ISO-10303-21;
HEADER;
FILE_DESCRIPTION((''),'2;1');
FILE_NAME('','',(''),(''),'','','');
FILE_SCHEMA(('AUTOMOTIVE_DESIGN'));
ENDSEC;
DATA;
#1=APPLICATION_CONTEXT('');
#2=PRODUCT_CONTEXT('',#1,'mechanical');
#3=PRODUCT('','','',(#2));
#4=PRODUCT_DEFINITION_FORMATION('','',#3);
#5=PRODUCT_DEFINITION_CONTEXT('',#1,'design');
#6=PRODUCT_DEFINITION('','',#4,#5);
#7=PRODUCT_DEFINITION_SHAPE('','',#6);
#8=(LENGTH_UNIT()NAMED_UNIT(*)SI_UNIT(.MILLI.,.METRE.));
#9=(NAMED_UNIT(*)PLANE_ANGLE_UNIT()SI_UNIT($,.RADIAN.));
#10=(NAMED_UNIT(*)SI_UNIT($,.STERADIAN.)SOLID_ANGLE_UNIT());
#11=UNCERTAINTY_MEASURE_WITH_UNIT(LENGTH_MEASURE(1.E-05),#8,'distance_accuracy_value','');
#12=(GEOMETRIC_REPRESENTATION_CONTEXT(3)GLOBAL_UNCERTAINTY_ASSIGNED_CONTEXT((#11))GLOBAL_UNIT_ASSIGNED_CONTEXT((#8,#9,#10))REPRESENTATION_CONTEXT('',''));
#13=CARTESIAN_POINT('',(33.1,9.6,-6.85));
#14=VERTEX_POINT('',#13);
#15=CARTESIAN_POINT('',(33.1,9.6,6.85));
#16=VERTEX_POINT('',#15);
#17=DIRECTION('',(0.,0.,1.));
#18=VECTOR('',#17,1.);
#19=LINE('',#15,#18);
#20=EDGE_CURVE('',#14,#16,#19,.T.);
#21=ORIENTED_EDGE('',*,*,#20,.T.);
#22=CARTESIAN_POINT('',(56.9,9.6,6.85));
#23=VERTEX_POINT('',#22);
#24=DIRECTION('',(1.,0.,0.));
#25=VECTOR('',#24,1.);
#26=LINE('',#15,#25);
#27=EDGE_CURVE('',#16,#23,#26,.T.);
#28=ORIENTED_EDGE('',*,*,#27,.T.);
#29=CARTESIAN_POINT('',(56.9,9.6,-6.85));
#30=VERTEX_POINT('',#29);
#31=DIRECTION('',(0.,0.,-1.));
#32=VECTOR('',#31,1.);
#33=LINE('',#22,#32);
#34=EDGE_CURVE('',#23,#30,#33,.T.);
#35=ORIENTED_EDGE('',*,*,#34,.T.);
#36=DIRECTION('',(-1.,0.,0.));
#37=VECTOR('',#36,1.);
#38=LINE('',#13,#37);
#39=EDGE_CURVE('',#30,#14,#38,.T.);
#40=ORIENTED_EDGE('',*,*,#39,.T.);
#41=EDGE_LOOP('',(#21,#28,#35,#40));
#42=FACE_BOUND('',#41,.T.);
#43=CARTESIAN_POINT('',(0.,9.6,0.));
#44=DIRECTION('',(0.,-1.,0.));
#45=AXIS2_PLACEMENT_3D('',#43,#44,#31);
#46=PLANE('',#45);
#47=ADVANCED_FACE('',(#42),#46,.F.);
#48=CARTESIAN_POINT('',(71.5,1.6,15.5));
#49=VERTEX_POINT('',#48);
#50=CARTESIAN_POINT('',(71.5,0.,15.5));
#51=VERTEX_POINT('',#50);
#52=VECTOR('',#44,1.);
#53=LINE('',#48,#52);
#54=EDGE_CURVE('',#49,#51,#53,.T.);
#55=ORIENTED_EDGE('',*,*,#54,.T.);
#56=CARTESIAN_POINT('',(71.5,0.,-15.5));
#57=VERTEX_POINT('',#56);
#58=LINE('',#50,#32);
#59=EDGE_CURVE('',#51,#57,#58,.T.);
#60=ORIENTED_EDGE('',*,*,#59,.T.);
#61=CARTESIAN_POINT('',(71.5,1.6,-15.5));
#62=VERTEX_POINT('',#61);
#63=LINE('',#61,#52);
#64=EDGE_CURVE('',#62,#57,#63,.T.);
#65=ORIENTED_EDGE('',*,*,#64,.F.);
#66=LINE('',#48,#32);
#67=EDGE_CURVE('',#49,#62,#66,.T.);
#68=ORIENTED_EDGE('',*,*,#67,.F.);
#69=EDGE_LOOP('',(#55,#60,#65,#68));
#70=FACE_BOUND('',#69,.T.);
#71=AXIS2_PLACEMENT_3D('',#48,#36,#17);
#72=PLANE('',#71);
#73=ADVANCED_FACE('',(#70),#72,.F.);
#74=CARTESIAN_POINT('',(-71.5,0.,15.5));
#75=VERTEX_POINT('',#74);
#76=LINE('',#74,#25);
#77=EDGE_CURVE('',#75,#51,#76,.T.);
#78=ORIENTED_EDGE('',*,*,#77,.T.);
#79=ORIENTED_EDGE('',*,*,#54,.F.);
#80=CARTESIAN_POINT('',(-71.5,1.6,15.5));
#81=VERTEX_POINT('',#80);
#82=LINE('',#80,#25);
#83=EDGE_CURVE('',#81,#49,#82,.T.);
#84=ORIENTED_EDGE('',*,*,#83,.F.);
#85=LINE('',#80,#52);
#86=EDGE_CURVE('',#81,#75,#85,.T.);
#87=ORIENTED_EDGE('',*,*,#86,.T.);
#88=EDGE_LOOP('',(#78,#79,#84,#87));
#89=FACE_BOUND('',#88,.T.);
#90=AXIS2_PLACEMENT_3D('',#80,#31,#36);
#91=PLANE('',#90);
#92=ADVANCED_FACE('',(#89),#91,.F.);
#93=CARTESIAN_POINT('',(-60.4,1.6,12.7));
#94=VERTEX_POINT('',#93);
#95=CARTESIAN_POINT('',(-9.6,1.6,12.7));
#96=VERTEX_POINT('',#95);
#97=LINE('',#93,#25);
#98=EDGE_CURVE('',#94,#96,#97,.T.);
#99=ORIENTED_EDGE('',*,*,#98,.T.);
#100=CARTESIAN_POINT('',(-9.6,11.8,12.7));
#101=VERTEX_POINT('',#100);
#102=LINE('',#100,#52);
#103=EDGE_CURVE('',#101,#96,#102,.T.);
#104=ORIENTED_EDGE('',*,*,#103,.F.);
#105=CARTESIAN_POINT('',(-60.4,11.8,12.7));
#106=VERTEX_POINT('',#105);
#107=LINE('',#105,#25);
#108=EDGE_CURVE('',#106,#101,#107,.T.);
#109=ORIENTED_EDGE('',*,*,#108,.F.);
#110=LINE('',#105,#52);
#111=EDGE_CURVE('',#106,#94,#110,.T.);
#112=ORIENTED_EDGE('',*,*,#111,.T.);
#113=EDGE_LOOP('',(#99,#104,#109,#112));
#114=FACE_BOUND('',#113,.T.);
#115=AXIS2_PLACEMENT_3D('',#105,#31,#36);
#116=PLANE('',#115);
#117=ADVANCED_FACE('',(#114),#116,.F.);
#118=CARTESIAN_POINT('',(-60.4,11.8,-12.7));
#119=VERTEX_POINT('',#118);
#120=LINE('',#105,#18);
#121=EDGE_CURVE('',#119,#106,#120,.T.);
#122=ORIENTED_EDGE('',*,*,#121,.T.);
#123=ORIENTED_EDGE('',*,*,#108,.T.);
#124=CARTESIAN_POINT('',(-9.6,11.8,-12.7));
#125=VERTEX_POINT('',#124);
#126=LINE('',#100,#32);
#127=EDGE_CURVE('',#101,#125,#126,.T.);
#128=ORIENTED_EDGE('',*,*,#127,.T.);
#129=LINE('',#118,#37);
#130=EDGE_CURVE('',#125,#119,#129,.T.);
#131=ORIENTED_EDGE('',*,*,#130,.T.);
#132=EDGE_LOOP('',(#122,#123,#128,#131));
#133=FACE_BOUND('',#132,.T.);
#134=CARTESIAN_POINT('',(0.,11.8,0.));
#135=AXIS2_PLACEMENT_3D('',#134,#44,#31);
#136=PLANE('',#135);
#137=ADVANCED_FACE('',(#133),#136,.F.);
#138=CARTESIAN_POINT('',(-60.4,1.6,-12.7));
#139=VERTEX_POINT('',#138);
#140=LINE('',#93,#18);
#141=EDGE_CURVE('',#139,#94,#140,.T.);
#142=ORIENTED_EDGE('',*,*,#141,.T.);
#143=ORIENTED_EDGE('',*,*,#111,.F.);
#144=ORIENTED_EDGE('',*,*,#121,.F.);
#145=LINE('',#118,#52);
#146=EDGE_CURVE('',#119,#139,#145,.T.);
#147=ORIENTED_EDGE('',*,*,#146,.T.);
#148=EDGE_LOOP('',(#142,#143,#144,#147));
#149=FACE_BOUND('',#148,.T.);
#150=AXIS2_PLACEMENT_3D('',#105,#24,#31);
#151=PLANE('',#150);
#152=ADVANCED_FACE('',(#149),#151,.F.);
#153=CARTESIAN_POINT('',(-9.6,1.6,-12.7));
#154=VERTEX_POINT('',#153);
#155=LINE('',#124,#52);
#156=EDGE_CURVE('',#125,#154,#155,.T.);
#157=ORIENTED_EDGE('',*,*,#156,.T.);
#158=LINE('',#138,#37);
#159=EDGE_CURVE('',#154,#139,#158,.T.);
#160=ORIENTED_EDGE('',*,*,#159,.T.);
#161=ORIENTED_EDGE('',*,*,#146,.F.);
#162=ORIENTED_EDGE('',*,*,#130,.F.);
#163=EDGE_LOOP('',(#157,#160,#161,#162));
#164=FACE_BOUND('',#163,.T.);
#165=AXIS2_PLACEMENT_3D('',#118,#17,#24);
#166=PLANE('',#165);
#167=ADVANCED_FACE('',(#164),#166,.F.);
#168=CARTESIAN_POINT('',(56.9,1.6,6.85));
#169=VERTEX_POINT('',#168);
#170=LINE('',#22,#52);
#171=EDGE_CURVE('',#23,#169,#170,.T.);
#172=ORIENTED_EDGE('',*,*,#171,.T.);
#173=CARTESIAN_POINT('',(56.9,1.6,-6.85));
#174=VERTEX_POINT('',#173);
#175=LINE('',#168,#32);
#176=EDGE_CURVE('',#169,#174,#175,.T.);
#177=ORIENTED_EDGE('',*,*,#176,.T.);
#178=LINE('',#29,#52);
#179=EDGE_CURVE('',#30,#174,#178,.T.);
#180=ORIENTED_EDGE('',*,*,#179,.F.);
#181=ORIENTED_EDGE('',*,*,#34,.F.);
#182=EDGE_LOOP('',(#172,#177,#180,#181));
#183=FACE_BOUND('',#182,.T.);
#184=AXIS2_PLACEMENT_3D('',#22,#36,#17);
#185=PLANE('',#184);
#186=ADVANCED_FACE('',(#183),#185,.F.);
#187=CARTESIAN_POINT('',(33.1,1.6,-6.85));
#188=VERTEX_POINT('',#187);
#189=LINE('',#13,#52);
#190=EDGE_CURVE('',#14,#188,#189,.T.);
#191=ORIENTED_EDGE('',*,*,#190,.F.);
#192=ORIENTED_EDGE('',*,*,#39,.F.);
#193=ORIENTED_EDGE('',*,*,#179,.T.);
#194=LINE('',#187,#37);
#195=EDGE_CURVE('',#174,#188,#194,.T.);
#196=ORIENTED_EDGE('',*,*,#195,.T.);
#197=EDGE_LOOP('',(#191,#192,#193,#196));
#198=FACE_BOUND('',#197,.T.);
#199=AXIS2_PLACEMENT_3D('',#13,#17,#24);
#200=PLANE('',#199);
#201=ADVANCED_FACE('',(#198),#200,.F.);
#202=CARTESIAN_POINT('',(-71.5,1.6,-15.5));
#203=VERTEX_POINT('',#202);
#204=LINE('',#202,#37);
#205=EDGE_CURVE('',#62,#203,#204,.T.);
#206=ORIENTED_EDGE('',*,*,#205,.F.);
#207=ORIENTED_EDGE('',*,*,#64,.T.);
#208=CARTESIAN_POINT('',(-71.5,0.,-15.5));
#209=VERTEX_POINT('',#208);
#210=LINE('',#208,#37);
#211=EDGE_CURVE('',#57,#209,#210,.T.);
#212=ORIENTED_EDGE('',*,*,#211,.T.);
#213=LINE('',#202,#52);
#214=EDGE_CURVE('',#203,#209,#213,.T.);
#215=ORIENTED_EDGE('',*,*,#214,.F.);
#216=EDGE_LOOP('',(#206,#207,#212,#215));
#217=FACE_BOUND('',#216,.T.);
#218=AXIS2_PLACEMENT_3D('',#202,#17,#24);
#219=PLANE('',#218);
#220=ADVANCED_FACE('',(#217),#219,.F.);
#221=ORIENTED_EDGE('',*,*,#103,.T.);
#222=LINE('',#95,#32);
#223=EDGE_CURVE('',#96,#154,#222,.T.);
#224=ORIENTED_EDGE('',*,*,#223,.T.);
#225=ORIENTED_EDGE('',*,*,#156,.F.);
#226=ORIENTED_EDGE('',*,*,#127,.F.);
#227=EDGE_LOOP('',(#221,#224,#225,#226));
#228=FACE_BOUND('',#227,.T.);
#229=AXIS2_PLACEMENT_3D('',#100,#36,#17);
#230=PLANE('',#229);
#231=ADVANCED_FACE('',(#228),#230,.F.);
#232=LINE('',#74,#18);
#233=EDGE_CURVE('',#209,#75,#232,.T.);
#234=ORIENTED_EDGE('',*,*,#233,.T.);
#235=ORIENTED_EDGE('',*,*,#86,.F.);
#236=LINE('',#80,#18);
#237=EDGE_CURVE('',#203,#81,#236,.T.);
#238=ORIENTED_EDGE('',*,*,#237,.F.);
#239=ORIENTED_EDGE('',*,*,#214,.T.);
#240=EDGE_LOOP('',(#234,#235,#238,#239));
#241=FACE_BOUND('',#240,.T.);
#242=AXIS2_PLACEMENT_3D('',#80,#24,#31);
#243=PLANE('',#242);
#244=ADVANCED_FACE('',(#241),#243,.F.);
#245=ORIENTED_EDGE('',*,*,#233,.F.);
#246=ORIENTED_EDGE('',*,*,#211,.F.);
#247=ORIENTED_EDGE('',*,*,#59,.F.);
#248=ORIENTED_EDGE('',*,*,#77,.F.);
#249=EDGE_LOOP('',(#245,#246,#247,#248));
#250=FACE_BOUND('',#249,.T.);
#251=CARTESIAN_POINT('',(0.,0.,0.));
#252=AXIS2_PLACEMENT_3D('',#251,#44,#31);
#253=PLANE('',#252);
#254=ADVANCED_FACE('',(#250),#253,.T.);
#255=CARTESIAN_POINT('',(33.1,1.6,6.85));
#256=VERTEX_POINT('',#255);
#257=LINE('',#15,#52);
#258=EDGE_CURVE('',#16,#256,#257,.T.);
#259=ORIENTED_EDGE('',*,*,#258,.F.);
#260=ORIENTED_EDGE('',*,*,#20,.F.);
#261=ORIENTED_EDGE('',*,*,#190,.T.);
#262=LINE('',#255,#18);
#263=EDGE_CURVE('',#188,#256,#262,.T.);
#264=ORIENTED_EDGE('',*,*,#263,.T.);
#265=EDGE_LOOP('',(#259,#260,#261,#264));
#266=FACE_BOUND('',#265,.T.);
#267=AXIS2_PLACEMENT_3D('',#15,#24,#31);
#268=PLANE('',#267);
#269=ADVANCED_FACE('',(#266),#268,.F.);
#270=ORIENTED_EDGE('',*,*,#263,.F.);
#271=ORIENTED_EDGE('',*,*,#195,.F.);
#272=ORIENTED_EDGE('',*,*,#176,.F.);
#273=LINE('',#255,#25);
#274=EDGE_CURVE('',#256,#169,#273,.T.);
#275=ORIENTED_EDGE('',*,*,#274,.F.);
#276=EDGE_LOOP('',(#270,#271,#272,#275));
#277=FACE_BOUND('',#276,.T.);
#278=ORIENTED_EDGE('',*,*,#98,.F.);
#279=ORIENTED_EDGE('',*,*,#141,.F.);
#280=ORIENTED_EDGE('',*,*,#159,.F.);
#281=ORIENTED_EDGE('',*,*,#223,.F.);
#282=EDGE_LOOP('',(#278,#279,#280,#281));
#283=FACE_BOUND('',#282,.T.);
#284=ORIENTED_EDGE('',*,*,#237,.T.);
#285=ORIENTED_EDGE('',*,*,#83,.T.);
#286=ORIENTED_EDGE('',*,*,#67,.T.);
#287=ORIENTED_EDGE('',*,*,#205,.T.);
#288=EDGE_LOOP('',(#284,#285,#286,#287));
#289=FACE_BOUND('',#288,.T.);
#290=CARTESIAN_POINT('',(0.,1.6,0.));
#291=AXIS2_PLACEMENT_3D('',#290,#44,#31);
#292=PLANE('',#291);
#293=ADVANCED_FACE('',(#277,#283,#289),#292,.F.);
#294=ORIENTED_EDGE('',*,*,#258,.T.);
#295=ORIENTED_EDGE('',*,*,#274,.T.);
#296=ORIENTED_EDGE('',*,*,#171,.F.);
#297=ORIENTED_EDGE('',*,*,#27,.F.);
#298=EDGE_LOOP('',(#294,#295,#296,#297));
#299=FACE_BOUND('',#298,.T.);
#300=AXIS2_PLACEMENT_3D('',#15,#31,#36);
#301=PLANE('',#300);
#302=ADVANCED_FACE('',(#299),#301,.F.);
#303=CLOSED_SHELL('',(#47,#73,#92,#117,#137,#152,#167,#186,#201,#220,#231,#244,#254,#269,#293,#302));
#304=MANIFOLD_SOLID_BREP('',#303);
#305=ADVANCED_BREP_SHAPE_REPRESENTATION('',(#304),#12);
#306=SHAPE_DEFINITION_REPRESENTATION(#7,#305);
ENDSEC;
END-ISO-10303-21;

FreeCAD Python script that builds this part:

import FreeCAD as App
import Part
import Sketcher
Q = App.Units.Quantity

doc = App.newDocument("Part")
body = doc.addObject("PartDesign::Body", "Body")

sketch1 = doc.addObject("Sketcher::SketchObject", "Sketch")
body.addObject(sketch1)
sketch1.AttachmentSupport = (doc.XZ_Plane, [""])
sketch1.MapMode = "FlatFace"
sketch1.addGeometry([
    Part.LineSegment(App.Vector(-72, -16, 0), App.Vector(-72, 16, 0)),
    Part.LineSegment(App.Vector(-72, 16, 0), App.Vector(72, 16, 0)),
    Part.LineSegment(App.Vector(72, 16, 0), App.Vector(72, -16, 0)),
    Part.LineSegment(App.Vector(72, -16, 0), App.Vector(-72, -16, 0)),
], False)
sketch1.addConstraint([
    Sketcher.Constraint("Coincident", 0, 2, 1, 1),
    Sketcher.Constraint("Coincident", 1, 2, 2, 1),
    Sketcher.Constraint("Coincident", 2, 2, 3, 1),
    Sketcher.Constraint("Coincident", 3, 2, 0, 1),
    Sketcher.Constraint("Vertical", 0),
    Sketcher.Constraint("Horizontal", 1),
    Sketcher.Constraint("Vertical", 2),
    Sketcher.Constraint("Horizontal", 3),
    Sketcher.Constraint("Symmetric", 0, 2, 2, 2, -1, 1),
    Sketcher.Constraint("DistanceX", 1, 1, 1, 2, Q("143 mm")),
    Sketcher.Constraint("DistanceY", 0, 1, 0, 2, Q("31 mm")),
])
pad1 = doc.addObject("PartDesign::Pad", "Pad")
body.addObject(pad1)
pad1.Profile = sketch1
pad1.Length = 1.6
pad1.Reversed = True

sketch2 = doc.addObject("Sketcher::SketchObject", "Sketch001")
body.addObject(sketch2)
sketch2.AttachmentSupport = (doc.XZ_Plane, [""])
sketch2.MapMode = "FlatFace"
sketch2.AttachmentOffset = App.Placement(App.Vector(0, 0, -1.6), App.Rotation())
sketch2.addGeometry([
    Part.LineSegment(App.Vector(33, -7, 0), App.Vector(33, 7, 0)),
    Part.LineSegment(App.Vector(33, 7, 0), App.Vector(57, 7, 0)),
    Part.LineSegment(App.Vector(57, 7, 0), App.Vector(57, -7, 0)),
    Part.LineSegment(App.Vector(57, -7, 0), App.Vector(33, -7, 0)),
], False)
sketch2.addConstraint([
    Sketcher.Constraint("Coincident", 0, 2, 1, 1),
    Sketcher.Constraint("Coincident", 1, 2, 2, 1),
    Sketcher.Constraint("Coincident", 2, 2, 3, 1),
    Sketcher.Constraint("Coincident", 3, 2, 0, 1),
    Sketcher.Constraint("Vertical", 0),
    Sketcher.Constraint("Horizontal", 1),
    Sketcher.Constraint("Vertical", 2),
    Sketcher.Constraint("Horizontal", 3),
    Sketcher.Constraint("DistanceX", 1, 1, 1, 2, Q("23.8 mm")),
    Sketcher.Constraint("DistanceY", 0, 1, 0, 2, Q("13.7 mm")),
    Sketcher.Constraint("DistanceX", -1, 1, 0, 2, Q("33.1 mm")),
    Sketcher.Constraint("DistanceY", -1, 1, 0, 2, Q("6.85 mm")),
])
pad2 = doc.addObject("PartDesign::Pad", "Pad001")
body.addObject(pad2)
pad2.Profile = sketch2
pad2.Length = 8
pad2.Reversed = True

sketch3 = doc.addObject("Sketcher::SketchObject", "Sketch002")
body.addObject(sketch3)
sketch3.AttachmentSupport = (doc.XZ_Plane, [""])
sketch3.MapMode = "FlatFace"
sketch3.AttachmentOffset = App.Placement(App.Vector(0, 0, -1.6), App.Rotation())
sketch3.addGeometry([
    Part.LineSegment(App.Vector(-60, -13, 0), App.Vector(-60, 13, 0)),
    Part.LineSegment(App.Vector(-60, 13, 0), App.Vector(-10, 13, 0)),
    Part.LineSegment(App.Vector(-10, 13, 0), App.Vector(-10, -13, 0)),
    Part.LineSegment(App.Vector(-10, -13, 0), App.Vector(-60, -13, 0)),
], False)
sketch3.addConstraint([
    Sketcher.Constraint("Coincident", 0, 2, 1, 1),
    Sketcher.Constraint("Coincident", 1, 2, 2, 1),
    Sketcher.Constraint("Coincident", 2, 2, 3, 1),
    Sketcher.Constraint("Coincident", 3, 2, 0, 1),
    Sketcher.Constraint("Vertical", 0),
    Sketcher.Constraint("Horizontal", 1),
    Sketcher.Constraint("Vertical", 2),
    Sketcher.Constraint("Horizontal", 3),
    Sketcher.Constraint("DistanceX", 1, 1, 1, 2, Q("50.8 mm")),
    Sketcher.Constraint("DistanceY", 0, 1, 0, 2, Q("25.4 mm")),
    Sketcher.Constraint("DistanceX", 0, 2, -1, 1, Q("60.4 mm")),
    Sketcher.Constraint("DistanceY", -1, 1, 0, 2, Q("12.7 mm")),
])
pad3 = doc.addObject("PartDesign::Pad", "Pad002")
body.addObject(pad3)
pad3.Profile = sketch3
pad3.Length = 10.2
pad3.Reversed = True

doc.recompute()
